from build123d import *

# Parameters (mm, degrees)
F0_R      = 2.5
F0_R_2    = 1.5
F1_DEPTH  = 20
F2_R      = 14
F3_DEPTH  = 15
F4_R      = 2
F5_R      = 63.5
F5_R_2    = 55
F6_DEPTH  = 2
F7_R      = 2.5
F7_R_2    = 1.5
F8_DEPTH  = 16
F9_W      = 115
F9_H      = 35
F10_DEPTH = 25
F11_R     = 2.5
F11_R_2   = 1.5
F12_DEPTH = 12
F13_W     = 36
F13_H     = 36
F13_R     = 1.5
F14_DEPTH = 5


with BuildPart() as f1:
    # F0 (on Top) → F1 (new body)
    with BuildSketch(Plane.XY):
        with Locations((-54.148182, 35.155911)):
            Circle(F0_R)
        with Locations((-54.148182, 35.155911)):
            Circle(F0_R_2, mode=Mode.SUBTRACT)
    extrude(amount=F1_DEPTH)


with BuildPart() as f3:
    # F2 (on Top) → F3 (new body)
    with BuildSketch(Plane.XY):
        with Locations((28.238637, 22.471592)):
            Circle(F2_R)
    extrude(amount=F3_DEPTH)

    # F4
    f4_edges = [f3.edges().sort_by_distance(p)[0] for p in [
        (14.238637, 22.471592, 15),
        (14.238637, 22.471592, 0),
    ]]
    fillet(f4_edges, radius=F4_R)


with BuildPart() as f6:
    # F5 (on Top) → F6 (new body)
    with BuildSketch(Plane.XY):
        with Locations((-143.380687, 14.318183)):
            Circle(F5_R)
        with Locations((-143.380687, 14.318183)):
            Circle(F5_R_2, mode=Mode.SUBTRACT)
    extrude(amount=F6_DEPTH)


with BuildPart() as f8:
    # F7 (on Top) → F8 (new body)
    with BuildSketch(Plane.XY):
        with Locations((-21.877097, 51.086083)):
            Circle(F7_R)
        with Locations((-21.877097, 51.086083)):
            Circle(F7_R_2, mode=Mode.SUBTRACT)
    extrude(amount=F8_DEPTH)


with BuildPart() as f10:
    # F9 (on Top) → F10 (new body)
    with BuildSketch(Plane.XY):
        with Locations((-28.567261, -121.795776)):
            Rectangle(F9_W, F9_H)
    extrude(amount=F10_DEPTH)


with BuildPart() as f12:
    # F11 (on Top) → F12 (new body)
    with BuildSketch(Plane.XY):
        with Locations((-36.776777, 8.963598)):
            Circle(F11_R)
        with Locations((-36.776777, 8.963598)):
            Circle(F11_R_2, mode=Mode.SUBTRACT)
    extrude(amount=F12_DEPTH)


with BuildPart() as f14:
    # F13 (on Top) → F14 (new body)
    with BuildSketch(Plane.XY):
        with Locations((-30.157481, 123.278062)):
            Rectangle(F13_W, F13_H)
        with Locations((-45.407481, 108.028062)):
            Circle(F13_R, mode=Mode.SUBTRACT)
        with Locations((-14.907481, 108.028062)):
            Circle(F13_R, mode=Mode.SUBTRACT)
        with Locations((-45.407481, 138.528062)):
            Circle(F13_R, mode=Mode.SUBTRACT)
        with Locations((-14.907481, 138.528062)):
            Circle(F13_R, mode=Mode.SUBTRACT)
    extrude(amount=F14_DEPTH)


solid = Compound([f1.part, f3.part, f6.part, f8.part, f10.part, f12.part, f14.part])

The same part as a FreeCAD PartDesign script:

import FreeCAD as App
import Part
import Sketcher
from FreeCAD import Vector
Q = App.Units.Quantity


def edges_at(feature, points):
    """Names of the edges that pass closest to the given points."""
    edges = feature.Shape.Edges
    near = lambda p: min(range(len(edges)), key=lambda i: edges[i].distToShape(Part.Vertex(*p))[0])
    return sorted({f"Edge{near(p) + 1}" for p in points})


def add_polygon(sketch, points):
    """Adds a closed chain of lines whose ends are joined by coincident constraints."""
    first, n = sketch.GeometryCount, len(points)
    for a, b in zip(points, points[1:] + points[:1]):
        sketch.addGeometry(Part.LineSegment(App.Vector(*a, 0), App.Vector(*b, 0)), False)
    for i in range(n):
        sketch.addConstraint(Sketcher.Constraint("Coincident", first + i, 2, first + (i + 1) % n, 1))

doc = App.newDocument("Part")
body = doc.addObject("PartDesign::Body", "Body")

# Sketch on XY plane
sketch1 = doc.addObject("Sketcher::SketchObject", "Sketch")
body.addObject(sketch1)
sketch1.AttachmentSupport = (doc.XY_Plane, [""])
sketch1.MapMode = "FlatFace"
sketch1.addGeometry([
    Part.Circle(Vector(-54.148182, 35.155911, 0), Vector(0, 0, 1), 2.5),
    Part.Circle(Vector(-54.148182, 35.155911, 0), Vector(0, 0, 1), 1.5),
], False)
sketch1.addConstraint([
    Sketcher.Constraint("Coincident", 1, 3, 0, 3),
    Sketcher.Constraint("Diameter", 0, Q("5 mm")),
    Sketcher.Constraint("Diameter", 1, Q("3 mm")),
    Sketcher.Constraint("DistanceX", 0, 3, -1, 1, Q("54.148182 mm")),
    Sketcher.Constraint("DistanceY", -1, 1, 0, 3, Q("35.155911 mm")),
])
pad1 = doc.addObject("PartDesign::Pad", "Pad")
body.addObject(pad1)
pad1.Profile = sketch1
pad1.Length = 20
body2 = doc.addObject("PartDesign::Body", "Body001")

# Sketch on XY plane
sketch2 = doc.addObject("Sketcher::SketchObject", "Sketch001")
body2.addObject(sketch2)
sketch2.AttachmentSupport = (doc.getObject("XY_Plane001"), [""])
sketch2.MapMode = "FlatFace"
sketch2.addGeometry(Part.Circle(Vector(28.238637, 22.471592, 0), Vector(0, 0, 1), 14), False)
sketch2.addConstraint([
    Sketcher.Constraint("Diameter", 0, Q("28 mm")),
    Sketcher.Constraint("DistanceX", -1, 1, 0, 3, Q("28.238637 mm")),
    Sketcher.Constraint("DistanceY", -1, 1, 0, 3, Q("22.471592 mm")),
])
pad2 = doc.addObject("PartDesign::Pad", "Pad001")
body2.addObject(pad2)
pad2.Profile = sketch2
pad2.Length = 15
doc.recompute()

fillet = doc.addObject("PartDesign::Fillet", "Fillet")
body2.addObject(fillet)
fillet.Base = (pad2, edges_at(pad2, [(14.239, 22.472, 15), (14.239, 22.472, 0)]))
fillet.Radius = 2
body3 = doc.addObject("PartDesign::Body", "Body002")

# Sketch on XY plane
sketch3 = doc.addObject("Sketcher::SketchObject", "Sketch002")
body3.addObject(sketch3)
sketch3.AttachmentSupport = (doc.getObject("XY_Plane002"), [""])
sketch3.MapMode = "FlatFace"
sketch3.addGeometry([
    Part.Circle(Vector(-143.380687, 14.318183, 0), Vector(0, 0, 1), 63.5),
    Part.Circle(Vector(-143.380687, 14.318183, 0), Vector(0, 0, 1), 55),
], False)
sketch3.addConstraint([
    Sketcher.Constraint("Coincident", 1, 3, 0, 3),
    Sketcher.Constraint("Diameter", 0, Q("127 mm")),
    Sketcher.Constraint("Diameter", 1, Q("110 mm")),
    Sketcher.Constraint("DistanceX", 0, 3, -1, 1, Q("143.380687 mm")),
    Sketcher.Constraint("DistanceY", -1, 1, 0, 3, Q("14.318183 mm")),
])
pad3 = doc.addObject("PartDesign::Pad", "Pad002")
body3.addObject(pad3)
pad3.Profile = sketch3
pad3.Length = 2
body4 = doc.addObject("PartDesign::Body", "Body003")

# Sketch on XY plane
sketch4 = doc.addObject("Sketcher::SketchObject", "Sketch003")
body4.addObject(sketch4)
sketch4.AttachmentSupport = (doc.getObject("XY_Plane003"), [""])
sketch4.MapMode = "FlatFace"
sketch4.addGeometry([
    Part.Circle(Vector(-21.877097, 51.086083, 0), Vector(0, 0, 1), 2.5),
    Part.Circle(Vector(-21.877097, 51.086083, 0), Vector(0, 0, 1), 1.5),
], False)
sketch4.addConstraint([
    Sketcher.Constraint("Coincident", 1, 3, 0, 3),
    Sketcher.Constraint("Diameter", 0, Q("5 mm")),
    Sketcher.Constraint("Diameter", 1, Q("3 mm")),
    Sketcher.Constraint("DistanceX", 0, 3, -1, 1, Q("21.877097 mm")),
    Sketcher.Constraint("DistanceY", -1, 1, 0, 3, Q("51.086083 mm")),
])
pad4 = doc.addObject("PartDesign::Pad", "Pad003")
body4.addObject(pad4)
pad4.Profile = sketch4
pad4.Length = 16
body5 = doc.addObject("PartDesign::Body", "Body004")

# Sketch on XY plane
sketch5 = doc.addObject("Sketcher::SketchObject", "Sketch004")
body5.addObject(sketch5)
sketch5.AttachmentSupport = (doc.getObject("XY_Plane004"), [""])
sketch5.MapMode = "FlatFace"
add_polygon(sketch5, [(-86.067261, -104.295776), (-86.067261, -139.295776), (28.932739, -139.295776), (28.932739, -104.295776)])  # lines 0-3
sketch5.addConstraint([
    Sketcher.Constraint("Vertical", 0),
    Sketcher.Constraint("Horizontal", 1),
    Sketcher.Constraint("Vertical", 2),
    Sketcher.Constraint("Horizontal", 3),
    Sketcher.Constraint("DistanceX", 1, 1, 1, 2, Q("115 mm")),
    Sketcher.Constraint("DistanceY", 0, 2, 0, 1, Q("35 mm")),
    Sketcher.Constraint("DistanceX", 0, 2, -1, 1, Q("86.067261 mm")),
    Sketcher.Constraint("DistanceY", 0, 2, -1, 1, Q("139.295776 mm")),
])
pad5 = doc.addObject("PartDesign::Pad", "Pad004")
body5.addObject(pad5)
pad5.Profile = sketch5
pad5.Length = 25
body6 = doc.addObject("PartDesign::Body", "Body005")

# Sketch on XY plane
sketch6 = doc.addObject("Sketcher::SketchObject", "Sketch005")
body6.addObject(sketch6)
sketch6.AttachmentSupport = (doc.getObject("XY_Plane005"), [""])
sketch6.MapMode = "FlatFace"
sketch6.addGeometry([
    Part.Circle(Vector(-36.776777, 8.963598, 0), Vector(0, 0, 1), 2.5),
    Part.Circle(Vector(-36.776777, 8.963598, 0), Vector(0, 0, 1), 1.5),
], False)
sketch6.addConstraint([
    Sketcher.Constraint("Coincident", 1, 3, 0, 3),
    Sketcher.Constraint("Diameter", 0, Q("5 mm")),
    Sketcher.Constraint("Diameter", 1, Q("3 mm")),
    Sketcher.Constraint("DistanceX", 0, 3, -1, 1, Q("36.776777 mm")),
    Sketcher.Constraint("DistanceY", -1, 1, 0, 3, Q("8.963598 mm")),
])
pad6 = doc.addObject("PartDesign::Pad", "Pad005")
body6.addObject(pad6)
pad6.Profile = sketch6
pad6.Length = 12
body7 = doc.addObject("PartDesign::Body", "Body006")

# Sketch on XY plane
sketch7 = doc.addObject("Sketcher::SketchObject", "Sketch006")
body7.addObject(sketch7)
sketch7.AttachmentSupport = (doc.getObject("XY_Plane006"), [""])
sketch7.MapMode = "FlatFace"
add_polygon(sketch7, [(-48.157481, 141.278062), (-48.157481, 105.278062), (-12.157481, 105.278062), (-12.157481, 141.278062)])  # lines 0-3
sketch7.addGeometry(Part.Circle(Vector(-45.407481, 108.028062, 0), Vector(0, 0, 1), 1.5), False)  # 4
sketch7.addGeometry(Part.Circle(Vector(-14.907481, 108.028062, 0), Vector(0, 0, 1), 1.5), False)  # 5
sketch7.addGeometry(Part.Circle(Vector(-45.407481, 138.528062, 0), Vector(0, 0, 1), 1.5), False)  # 6
sketch7.addGeometry(Part.Circle(Vector(-14.907481, 138.528062, 0), Vector(0, 0, 1), 1.5), False)  # 7
sketch7.addConstraint([
    Sketcher.Constraint("Vertical", 0),
    Sketcher.Constraint("Horizontal", 1),
    Sketcher.Constraint("Vertical", 2),
    Sketcher.Constraint("Horizontal", 3),
    Sketcher.Constraint("Equal", 4, 5),
    Sketcher.Constraint("Equal", 5, 6),
    Sketcher.Constraint("Equal", 6, 7),
    Sketcher.Constraint("Horizontal", 4, 3, 5, 3),
    Sketcher.Constraint("Horizontal", 6, 3, 7, 3),
    Sketcher.Constraint("Vertical", 4, 3, 6, 3),
    Sketcher.Constraint("Vertical", 5, 3, 7, 3),
    Sketcher.Constraint("Equal", 3, 0),
    Sketcher.Constraint("Diameter", 4, Q("3 mm")),
    Sketcher.Constraint("DistanceX", 1, 1, 1, 2, Q("36 mm")),
    Sketcher.Constraint("DistanceX", 4, 3, 5, 3, Q("30.5 mm")),
    Sketcher.Constraint("DistanceY", 4, 3, 6, 3, Q("30.5 mm")),
    Sketcher.Constraint("DistanceX", 0, 2, 4, 3, Q("2.75 mm")),
    Sketcher.Constraint("DistanceY", 0, 2, 4, 3, Q("2.75 mm")),
    Sketcher.Constraint("DistanceX", 4, 3, -1, 1, Q("45.407481 mm")),
    Sketcher.Constraint("DistanceY", -1, 1, 6, 3, Q("138.528062 mm")),
])
pad7 = doc.addObject("PartDesign::Pad", "Pad006")
body7.addObject(pad7)
pad7.Profile = sketch7
pad7.Length = 5

doc.recompute()
